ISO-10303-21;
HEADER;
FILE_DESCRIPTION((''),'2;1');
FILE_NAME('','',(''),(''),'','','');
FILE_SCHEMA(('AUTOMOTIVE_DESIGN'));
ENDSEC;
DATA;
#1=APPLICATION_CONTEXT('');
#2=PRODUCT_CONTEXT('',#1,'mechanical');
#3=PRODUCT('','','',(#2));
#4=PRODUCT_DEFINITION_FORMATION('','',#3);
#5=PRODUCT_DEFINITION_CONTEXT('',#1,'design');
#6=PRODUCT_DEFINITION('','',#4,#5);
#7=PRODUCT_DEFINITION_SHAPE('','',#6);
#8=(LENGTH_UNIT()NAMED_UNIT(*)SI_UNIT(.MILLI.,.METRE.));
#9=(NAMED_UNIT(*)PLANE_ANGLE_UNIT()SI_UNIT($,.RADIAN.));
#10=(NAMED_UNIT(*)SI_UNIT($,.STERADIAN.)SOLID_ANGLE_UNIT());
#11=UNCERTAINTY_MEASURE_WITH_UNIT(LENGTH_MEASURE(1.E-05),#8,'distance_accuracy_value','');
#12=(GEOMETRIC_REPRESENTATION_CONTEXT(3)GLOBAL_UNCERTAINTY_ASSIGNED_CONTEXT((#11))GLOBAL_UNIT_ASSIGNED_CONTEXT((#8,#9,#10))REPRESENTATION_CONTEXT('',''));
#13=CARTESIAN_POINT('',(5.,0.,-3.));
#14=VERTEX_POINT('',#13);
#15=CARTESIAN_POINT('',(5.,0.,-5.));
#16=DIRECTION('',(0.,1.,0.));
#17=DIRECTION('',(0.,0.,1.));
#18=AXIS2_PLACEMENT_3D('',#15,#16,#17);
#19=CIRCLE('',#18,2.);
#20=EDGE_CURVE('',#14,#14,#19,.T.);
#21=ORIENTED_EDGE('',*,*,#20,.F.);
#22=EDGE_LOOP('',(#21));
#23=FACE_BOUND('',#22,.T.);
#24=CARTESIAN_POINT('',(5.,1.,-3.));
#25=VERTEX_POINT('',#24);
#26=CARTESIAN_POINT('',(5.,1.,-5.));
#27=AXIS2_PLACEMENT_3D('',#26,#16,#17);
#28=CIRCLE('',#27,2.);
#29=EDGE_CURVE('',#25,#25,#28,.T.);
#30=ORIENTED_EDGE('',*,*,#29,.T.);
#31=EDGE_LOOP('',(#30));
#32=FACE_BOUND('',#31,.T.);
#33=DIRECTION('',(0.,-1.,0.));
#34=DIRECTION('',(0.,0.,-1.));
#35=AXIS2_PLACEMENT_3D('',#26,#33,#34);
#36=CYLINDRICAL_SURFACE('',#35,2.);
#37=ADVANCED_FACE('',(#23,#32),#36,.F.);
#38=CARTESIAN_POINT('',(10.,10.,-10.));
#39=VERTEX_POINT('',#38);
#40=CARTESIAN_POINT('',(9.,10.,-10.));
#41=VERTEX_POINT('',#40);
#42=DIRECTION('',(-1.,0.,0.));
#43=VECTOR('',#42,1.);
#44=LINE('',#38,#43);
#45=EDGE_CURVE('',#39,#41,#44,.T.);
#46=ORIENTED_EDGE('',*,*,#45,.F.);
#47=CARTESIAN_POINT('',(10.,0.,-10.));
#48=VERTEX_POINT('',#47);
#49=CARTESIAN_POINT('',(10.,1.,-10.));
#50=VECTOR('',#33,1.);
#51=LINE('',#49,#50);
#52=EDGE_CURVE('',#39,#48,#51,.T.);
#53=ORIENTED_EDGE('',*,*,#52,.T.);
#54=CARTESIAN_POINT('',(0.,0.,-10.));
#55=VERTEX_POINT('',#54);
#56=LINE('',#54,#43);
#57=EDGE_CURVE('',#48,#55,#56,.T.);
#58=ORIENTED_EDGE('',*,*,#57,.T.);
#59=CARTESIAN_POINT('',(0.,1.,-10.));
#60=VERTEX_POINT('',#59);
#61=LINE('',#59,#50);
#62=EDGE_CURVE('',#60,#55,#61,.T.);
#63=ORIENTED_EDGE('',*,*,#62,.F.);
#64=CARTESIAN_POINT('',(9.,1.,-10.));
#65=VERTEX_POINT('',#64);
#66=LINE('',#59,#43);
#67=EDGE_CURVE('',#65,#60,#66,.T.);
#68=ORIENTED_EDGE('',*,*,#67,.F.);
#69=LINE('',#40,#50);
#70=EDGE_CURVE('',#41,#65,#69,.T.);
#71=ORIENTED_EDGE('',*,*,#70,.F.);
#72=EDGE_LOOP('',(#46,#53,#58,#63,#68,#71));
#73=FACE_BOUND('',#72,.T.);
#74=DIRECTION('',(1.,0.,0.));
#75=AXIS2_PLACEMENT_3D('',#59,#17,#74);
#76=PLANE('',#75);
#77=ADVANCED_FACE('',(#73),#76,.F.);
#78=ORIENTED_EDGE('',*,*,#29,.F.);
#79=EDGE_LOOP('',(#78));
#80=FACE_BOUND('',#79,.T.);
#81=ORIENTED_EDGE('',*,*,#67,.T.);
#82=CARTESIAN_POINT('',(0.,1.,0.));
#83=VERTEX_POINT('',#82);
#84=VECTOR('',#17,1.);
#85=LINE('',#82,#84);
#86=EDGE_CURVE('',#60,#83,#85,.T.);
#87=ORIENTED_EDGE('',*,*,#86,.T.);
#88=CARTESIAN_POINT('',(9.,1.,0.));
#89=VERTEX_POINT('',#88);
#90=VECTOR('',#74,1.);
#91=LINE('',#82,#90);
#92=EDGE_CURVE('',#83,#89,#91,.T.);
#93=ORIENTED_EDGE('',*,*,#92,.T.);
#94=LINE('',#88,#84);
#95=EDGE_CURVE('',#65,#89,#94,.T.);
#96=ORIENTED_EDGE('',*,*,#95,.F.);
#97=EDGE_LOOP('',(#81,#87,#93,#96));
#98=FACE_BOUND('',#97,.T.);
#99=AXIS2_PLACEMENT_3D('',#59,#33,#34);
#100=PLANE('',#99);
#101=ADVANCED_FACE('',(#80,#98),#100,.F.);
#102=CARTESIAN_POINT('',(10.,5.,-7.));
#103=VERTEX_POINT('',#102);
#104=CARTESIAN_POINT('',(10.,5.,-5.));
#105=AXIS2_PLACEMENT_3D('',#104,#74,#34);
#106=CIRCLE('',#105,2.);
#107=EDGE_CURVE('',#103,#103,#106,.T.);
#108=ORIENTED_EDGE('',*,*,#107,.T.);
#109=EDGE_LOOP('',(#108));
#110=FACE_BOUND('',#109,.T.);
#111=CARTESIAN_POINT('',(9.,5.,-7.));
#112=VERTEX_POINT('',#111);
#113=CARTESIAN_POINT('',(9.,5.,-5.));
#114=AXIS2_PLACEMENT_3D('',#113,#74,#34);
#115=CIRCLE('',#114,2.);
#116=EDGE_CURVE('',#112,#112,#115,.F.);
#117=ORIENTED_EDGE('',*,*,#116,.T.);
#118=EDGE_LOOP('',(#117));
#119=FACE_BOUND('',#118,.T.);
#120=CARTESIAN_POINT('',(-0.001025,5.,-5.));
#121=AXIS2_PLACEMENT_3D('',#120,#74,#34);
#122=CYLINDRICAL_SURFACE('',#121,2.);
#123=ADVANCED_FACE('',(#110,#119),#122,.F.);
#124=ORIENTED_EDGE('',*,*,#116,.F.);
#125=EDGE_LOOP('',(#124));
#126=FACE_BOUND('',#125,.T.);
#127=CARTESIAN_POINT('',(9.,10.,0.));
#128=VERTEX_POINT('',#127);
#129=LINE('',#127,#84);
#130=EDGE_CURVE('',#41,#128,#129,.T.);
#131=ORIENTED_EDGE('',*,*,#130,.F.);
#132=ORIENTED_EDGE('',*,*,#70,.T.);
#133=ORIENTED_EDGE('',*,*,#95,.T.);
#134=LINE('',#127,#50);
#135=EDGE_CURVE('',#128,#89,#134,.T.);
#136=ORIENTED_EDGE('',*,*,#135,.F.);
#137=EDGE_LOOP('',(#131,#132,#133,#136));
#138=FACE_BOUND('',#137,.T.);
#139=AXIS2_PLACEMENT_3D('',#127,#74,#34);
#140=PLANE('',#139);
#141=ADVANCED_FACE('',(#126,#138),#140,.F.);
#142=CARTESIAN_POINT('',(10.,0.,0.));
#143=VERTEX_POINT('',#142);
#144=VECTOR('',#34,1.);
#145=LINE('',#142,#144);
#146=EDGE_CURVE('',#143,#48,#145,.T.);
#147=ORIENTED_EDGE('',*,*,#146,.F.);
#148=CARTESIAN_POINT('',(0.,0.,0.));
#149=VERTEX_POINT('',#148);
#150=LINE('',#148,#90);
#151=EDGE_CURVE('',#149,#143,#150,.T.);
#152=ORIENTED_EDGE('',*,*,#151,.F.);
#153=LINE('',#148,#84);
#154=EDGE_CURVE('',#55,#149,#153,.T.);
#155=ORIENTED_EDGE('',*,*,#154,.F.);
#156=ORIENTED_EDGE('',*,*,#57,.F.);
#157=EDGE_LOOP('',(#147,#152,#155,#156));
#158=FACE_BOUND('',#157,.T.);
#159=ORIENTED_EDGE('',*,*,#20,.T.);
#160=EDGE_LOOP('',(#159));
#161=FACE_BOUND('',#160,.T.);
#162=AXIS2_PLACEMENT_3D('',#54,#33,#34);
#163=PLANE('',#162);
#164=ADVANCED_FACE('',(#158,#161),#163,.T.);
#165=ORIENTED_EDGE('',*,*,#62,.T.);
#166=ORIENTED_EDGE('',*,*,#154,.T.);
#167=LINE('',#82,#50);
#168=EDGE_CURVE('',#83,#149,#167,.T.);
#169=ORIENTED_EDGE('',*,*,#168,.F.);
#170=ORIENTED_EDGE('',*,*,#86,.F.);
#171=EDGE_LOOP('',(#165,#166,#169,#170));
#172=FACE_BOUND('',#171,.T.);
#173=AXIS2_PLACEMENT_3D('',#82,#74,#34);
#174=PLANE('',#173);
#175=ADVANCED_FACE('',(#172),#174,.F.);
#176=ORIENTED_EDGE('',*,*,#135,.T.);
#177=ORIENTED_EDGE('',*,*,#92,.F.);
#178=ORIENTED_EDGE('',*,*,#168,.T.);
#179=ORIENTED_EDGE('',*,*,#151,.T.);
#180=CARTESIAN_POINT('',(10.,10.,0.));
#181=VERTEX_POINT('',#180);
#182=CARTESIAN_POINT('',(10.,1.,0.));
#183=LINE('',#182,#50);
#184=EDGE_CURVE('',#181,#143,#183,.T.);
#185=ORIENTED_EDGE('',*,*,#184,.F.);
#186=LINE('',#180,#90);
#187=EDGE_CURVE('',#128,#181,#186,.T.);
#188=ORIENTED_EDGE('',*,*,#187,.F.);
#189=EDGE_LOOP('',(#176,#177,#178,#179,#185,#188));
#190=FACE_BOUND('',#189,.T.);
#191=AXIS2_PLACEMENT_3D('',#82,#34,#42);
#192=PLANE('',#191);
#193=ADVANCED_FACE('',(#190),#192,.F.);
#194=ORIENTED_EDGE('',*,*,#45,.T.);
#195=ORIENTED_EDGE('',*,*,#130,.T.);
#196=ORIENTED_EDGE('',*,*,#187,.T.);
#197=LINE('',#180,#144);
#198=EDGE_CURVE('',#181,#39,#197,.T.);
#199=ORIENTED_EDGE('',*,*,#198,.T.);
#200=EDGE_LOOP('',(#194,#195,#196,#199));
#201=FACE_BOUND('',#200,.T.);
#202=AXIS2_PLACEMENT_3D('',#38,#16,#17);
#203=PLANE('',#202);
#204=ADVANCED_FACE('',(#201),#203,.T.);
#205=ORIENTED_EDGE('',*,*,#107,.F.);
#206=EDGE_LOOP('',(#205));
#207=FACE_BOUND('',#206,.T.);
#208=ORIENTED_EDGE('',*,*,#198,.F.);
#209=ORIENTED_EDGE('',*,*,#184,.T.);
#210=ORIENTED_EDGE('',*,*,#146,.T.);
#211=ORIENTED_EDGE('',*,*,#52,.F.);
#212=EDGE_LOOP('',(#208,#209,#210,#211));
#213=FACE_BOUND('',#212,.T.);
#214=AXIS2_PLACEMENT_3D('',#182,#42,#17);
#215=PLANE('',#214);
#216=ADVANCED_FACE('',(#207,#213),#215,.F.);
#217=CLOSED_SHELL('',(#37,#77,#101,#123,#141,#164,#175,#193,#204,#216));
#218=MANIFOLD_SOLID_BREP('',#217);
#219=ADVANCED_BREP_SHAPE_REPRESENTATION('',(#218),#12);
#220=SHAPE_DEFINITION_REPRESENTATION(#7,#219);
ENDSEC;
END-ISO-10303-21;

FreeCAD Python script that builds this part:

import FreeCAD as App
import Part
import Sketcher
from FreeCAD import Vector


def add_polygon(sketch, points):
    """Adds a closed chain of lines whose ends are joined by coincident constraints."""
    first, n = sketch.GeometryCount, len(points)
    for a, b in zip(points, points[1:] + points[:1]):
        sketch.addGeometry(Part.LineSegment(App.Vector(*a, 0), App.Vector(*b, 0)), False)
    for i in range(n):
        sketch.addConstraint(Sketcher.Constraint("Coincident", first + i, 2, first + (i + 1) % n, 1))

doc = App.newDocument("Part")
body = doc.addObject("PartDesign::Body", "Body")

sketch1 = body.newObject("Sketcher::SketchObject", "Sketch")
sketch1.AttachmentSupport = (doc.getObject("XZ_Plane"), [""])
sketch1.MapMode = "FlatFace"
add_polygon(sketch1, [(0, -10), (0, 0), (10, 0), (10, -10)])
sketch1.addGeometry(Part.Circle(Vector(5, -5, 0), Vector(0, 0, 1), 2), False)
sketch1.addConstraint(Sketcher.Constraint("Vertical", 0))
sketch1.addConstraint(Sketcher.Constraint("Horizontal", 1))
sketch1.addConstraint(Sketcher.Constraint("Vertical", 2))
sketch1.addConstraint(Sketcher.Constraint("Horizontal", 3))
sketch1.addConstraint(Sketcher.Constraint("Coincident", 0, 2, -1, 1))
sketch1.addConstraint(Sketcher.Constraint("Equal", 3, 0))
sketch1.addConstraint(Sketcher.Constraint("Diameter", 4, 4.0))
sketch1.addConstraint(Sketcher.Constraint("DistanceX", 1, 1, 1, 2, 10.0))
sketch1.addConstraint(Sketcher.Constraint("DistanceX", -1, 1, 4, 3, 5.0))
sketch1.addConstraint(Sketcher.Constraint("DistanceY", 4, 3, -1, 1, 5.0))
pad1 = body.newObject("PartDesign::Pad", "Pad")
pad1.Profile = sketch1
pad1.Length = 1
pad1.Reversed = True

sketch2 = body.newObject("Sketcher::SketchObject", "Sketch001")
sketch2.AttachmentSupport = (doc.getObject("XZ_Plane"), [""])
sketch2.MapMode = "FlatFace"
sketch2.AttachmentOffset = App.Placement(Vector(0, 0, -1), App.Rotation())
add_polygon(sketch2, [(9, -10), (9, 0), (10, 0), (10, -10)])
sketch2.addConstraint(Sketcher.Constraint("Vertical", 0))
sketch2.addConstraint(Sketcher.Constraint("Horizontal", 1))
sketch2.addConstraint(Sketcher.Constraint("Vertical", 2))
sketch2.addConstraint(Sketcher.Constraint("Horizontal", 3))
sketch2.addConstraint(Sketcher.Constraint("PointOnObject", 0, 2, -1))
sketch2.addConstraint(Sketcher.Constraint("DistanceX", 1, 1, 1, 2, 1.0))
sketch2.addConstraint(Sketcher.Constraint("DistanceY", 0, 1, 0, 2, 10.0))
sketch2.addConstraint(Sketcher.Constraint("DistanceX", -1, 1, 0, 2, 9.0))
pad2 = body.newObject("PartDesign::Pad", "Pad001")
pad2.Profile = sketch2
pad2.Length = 9
pad2.Reversed = True

sketch3 = body.newObject("Sketcher::SketchObject", "Sketch002")
sketch3.AttachmentSupport = (doc.getObject("YZ_Plane"), [""])
sketch3.MapMode = "FlatFace"
sketch3.AttachmentOffset = App.Placement(Vector(0, 0, 10), App.Rotation())
sketch3.addGeometry(Part.Circle(Vector(5, -5, 0), Vector(0, 0, 1), 2), False)
sketch3.addConstraint(Sketcher.Constraint("Diameter", 0, 4.0))
sketch3.addConstraint(Sketcher.Constraint("DistanceX", -1, 1, 0, 3, 5.0))
sketch3.addConstraint(Sketcher.Constraint("DistanceY", 0, 3, -1, 1, 5.0))
pocket1 = body.newObject("PartDesign::Pocket", "Pocket")
pocket1.Profile = sketch3
pocket1.Type = "UpToFirst"

doc.recompute()
